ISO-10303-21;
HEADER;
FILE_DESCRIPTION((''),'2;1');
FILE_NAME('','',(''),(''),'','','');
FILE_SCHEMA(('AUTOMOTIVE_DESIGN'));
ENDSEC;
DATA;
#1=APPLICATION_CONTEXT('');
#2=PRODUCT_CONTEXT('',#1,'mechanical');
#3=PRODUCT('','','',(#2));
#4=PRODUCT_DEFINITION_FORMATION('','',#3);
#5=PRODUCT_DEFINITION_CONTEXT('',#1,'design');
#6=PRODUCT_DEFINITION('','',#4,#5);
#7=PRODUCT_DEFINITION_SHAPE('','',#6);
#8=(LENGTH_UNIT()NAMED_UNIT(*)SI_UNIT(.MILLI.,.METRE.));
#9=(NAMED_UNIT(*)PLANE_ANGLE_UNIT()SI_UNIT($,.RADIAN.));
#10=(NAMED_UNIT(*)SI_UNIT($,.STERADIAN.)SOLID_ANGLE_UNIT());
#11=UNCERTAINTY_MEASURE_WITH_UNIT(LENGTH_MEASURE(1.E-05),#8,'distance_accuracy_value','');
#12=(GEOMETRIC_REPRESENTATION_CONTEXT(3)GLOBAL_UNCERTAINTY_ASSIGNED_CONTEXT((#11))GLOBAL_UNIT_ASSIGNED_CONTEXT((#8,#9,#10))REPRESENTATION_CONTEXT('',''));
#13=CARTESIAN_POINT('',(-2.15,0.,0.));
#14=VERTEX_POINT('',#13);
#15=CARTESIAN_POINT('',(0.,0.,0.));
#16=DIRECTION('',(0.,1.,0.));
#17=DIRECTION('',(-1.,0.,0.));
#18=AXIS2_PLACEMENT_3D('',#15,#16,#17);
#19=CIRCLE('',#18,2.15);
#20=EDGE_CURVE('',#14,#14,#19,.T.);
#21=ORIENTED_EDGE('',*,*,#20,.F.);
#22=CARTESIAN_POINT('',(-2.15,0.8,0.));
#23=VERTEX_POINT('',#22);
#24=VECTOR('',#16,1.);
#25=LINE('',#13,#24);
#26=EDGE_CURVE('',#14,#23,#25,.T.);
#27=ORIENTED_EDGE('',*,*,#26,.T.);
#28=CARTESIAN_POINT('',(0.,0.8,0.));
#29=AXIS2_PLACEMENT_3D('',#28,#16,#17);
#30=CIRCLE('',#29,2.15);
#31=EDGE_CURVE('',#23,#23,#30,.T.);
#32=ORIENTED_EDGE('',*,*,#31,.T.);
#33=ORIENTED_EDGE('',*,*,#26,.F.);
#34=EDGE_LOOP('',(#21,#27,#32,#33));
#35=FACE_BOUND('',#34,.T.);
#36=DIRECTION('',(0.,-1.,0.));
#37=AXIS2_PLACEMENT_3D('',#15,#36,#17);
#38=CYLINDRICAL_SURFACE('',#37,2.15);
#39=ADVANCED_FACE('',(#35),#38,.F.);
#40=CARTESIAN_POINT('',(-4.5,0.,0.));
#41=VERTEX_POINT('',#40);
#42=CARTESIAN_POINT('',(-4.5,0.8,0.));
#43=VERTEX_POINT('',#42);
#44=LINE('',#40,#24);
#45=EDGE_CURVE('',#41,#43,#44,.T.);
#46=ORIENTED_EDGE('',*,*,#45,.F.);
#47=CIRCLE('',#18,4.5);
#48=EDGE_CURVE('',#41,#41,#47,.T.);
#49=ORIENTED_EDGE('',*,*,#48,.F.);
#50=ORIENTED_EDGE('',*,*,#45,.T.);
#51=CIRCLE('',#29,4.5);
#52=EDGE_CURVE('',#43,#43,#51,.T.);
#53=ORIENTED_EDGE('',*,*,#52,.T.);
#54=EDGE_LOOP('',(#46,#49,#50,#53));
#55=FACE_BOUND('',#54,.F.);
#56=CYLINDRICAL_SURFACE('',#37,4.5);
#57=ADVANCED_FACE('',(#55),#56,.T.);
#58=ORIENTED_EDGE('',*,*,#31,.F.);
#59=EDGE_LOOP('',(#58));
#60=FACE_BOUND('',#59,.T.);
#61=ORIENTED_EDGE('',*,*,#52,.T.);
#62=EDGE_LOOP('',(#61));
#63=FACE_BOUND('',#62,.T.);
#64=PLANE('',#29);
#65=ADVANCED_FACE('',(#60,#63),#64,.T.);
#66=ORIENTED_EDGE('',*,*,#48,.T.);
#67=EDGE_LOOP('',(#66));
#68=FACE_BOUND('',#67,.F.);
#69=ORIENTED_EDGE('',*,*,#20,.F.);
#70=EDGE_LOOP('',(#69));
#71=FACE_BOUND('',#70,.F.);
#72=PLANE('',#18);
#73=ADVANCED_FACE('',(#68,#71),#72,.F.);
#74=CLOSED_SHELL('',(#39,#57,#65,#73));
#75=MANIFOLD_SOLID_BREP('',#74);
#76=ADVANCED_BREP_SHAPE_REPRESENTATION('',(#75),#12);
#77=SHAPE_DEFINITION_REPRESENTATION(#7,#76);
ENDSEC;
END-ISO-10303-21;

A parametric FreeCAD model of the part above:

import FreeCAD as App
import Part
import Sketcher
from FreeCAD import Vector

doc = App.newDocument("Part")
body = doc.addObject("PartDesign::Body", "Body")

# Sketch on XZ plane
sketch1 = doc.addObject("Sketcher::SketchObject", "Sketch")
body.addObject(sketch1)
sketch1.AttachmentSupport = (doc.XZ_Plane, [""])
sketch1.MapMode = "FlatFace"
sketch1.addGeometry(Part.Circle(Vector(0, 0, 0), Vector(0, 0, 1), 4.5), False)
sketch1.addGeometry(Part.Circle(Vector(0, 0, 0), Vector(0, 0, 1), 2.15), False)
sketch1.addConstraint(Sketcher.Constraint("Coincident", 0, 3, -1, 1))
sketch1.addConstraint(Sketcher.Constraint("Coincident", 1, 3, -1, 1))
sketch1.addConstraint(Sketcher.Constraint("Diameter", 0, 9.0))
sketch1.addConstraint(Sketcher.Constraint("Diameter", 1, 4.3))
pad1 = doc.addObject("PartDesign::Pad", "Pad")
body.addObject(pad1)
pad1.Profile = sketch1
pad1.Length = 0.8
pad1.Reversed = True

doc.recompute()
